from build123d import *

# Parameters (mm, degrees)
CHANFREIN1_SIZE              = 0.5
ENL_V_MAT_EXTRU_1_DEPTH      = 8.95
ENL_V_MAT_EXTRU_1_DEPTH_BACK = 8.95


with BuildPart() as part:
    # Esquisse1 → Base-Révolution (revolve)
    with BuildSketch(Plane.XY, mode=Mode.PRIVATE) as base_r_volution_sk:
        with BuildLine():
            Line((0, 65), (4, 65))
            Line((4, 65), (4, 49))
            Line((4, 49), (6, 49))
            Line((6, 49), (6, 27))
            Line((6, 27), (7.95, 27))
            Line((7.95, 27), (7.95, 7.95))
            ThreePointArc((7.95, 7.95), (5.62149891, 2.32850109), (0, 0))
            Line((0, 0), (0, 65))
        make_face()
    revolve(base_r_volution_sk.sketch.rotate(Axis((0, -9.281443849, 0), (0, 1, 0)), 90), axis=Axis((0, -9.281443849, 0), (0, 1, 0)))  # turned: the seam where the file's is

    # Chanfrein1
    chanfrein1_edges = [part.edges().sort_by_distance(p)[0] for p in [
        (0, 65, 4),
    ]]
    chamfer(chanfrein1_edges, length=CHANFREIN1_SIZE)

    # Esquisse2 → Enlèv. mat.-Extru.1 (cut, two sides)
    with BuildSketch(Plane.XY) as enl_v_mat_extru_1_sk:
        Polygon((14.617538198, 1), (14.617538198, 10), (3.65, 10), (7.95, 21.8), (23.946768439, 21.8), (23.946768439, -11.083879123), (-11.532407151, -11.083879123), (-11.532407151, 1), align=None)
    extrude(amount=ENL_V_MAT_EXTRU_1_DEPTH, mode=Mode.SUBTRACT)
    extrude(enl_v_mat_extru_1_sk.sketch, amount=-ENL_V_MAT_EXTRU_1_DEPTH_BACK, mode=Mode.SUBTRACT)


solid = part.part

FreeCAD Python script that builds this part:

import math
import FreeCAD as App
import Part
import Sketcher

V = App.Vector


def edges_at(feature, points):
    """Names of the edges that pass closest to the given points."""
    edges = feature.Shape.Edges
    near = lambda p: min(range(len(edges)), key=lambda i: edges[i].distToShape(Part.Vertex(*p))[0])
    return sorted({f"Edge{near(p) + 1}" for p in points})


def add_polygon(sketch, points):
    """Adds a closed chain of lines whose ends are joined by coincident constraints."""
    first, n = sketch.GeometryCount, len(points)
    for a, b in zip(points, points[1:] + points[:1]):
        sketch.addGeometry(Part.LineSegment(App.Vector(*a, 0), App.Vector(*b, 0)), False)
    for i in range(n):
        sketch.addConstraint(Sketcher.Constraint("Coincident", first + i, 2, first + (i + 1) % n, 1))

doc = App.newDocument("Part")
body = doc.addObject("PartDesign::Body", "Body")

# Sketch on XY plane
sketch1 = doc.addObject("Sketcher::SketchObject", "Sketch")
body.addObject(sketch1)
sketch1.AttachmentSupport = (doc.XY_Plane, [""])
sketch1.MapMode = "FlatFace"
sketch1.addGeometry([
    Part.LineSegment(V(4, 65, 0), V(0, 65, 0)),  # 0
    Part.LineSegment(V(0, 65, 0), V(0, 0, 0)),  # 1
    Part.ArcOfCircle(Part.Circle(V(0, 8, 0), V(0, 0, 1), 8), math.radians(-90), math.radians(0)),  # 2
    Part.LineSegment(V(8, 8, 0), V(8, 27, 0)),  # 3
    Part.LineSegment(V(8, 27, 0), V(6, 27, 0)),  # 4
    Part.LineSegment(V(6, 27, 0), V(6, 49, 0)),  # 5
    Part.LineSegment(V(6, 49, 0), V(4, 49, 0)),  # 6
    Part.LineSegment(V(4, 49, 0), V(4, 65, 0)),  # 7
], False)
sketch1.addConstraint([
    Sketcher.Constraint("Coincident", 0, 2, 1, 1),
    Sketcher.Constraint("Coincident", 1, 2, 2, 1),
    Sketcher.Constraint("Tangent", 2, 2, 3, 1),
    Sketcher.Constraint("Coincident", 3, 2, 4, 1),
    Sketcher.Constraint("Coincident", 4, 2, 5, 1),
    Sketcher.Constraint("Coincident", 5, 2, 6, 1),
    Sketcher.Constraint("Coincident", 6, 2, 7, 1),
    Sketcher.Constraint("Coincident", 7, 2, 0, 1),
    Sketcher.Constraint("Horizontal", 0),
    Sketcher.Constraint("Vertical", 1),
    Sketcher.Constraint("Vertical", 3),
    Sketcher.Constraint("Horizontal", 4),
    Sketcher.Constraint("Vertical", 5),
    Sketcher.Constraint("Horizontal", 6),
    Sketcher.Constraint("Vertical", 7),
    Sketcher.Constraint("Coincident", 1, 2, -1, 1),
    Sketcher.Constraint("PointOnObject", 2, 3, -2),
    Sketcher.Constraint("DistanceX", 0, 2, 0, 1, 4.0),
    Sketcher.Constraint("DistanceX", 6, 2, 6, 1, 2.0),
    Sketcher.Constraint("DistanceY", 1, 2, 1, 1, 65.0),
    Sketcher.Constraint("DistanceY", 5, 1, 5, 2, 22.0),
    Sketcher.Constraint("DistanceY", 7, 1, 7, 2, 16.0),
    Sketcher.Constraint("Radius", 2, 7.95),
])
revolution = doc.addObject("PartDesign::Revolution", "Revolution")
body.addObject(revolution)
revolution.Profile = sketch1
revolution.ReferenceAxis = (sketch1, ["V_Axis"])
revolution.Angle = 360
doc.recompute()

chamfer = doc.addObject("PartDesign::Chamfer", "Chamfer")
body.addObject(chamfer)
chamfer.Base = (revolution, edges_at(revolution, [(0, 65, 4)]))
chamfer.Size = 0.5

# Sketch on XY plane
sketch2 = doc.addObject("Sketcher::SketchObject", "Sketch001")
body.addObject(sketch2)
sketch2.AttachmentSupport = (doc.XY_Plane, [""])
sketch2.MapMode = "FlatFace"
add_polygon(sketch2, [(15, 10), (15, 1), (-12, 1), (-12, -11), (24, -11), (24, 22), (8, 22), (4, 10)])  # lines 0-7
sketch2.addConstraint([
    Sketcher.Constraint("Vertical", 0),
    Sketcher.Constraint("Horizontal", 1),
    Sketcher.Constraint("Vertical", 2),
    Sketcher.Constraint("Horizontal", 3),
    Sketcher.Constraint("Vertical", 4),
    Sketcher.Constraint("Horizontal", 5),
    Sketcher.Constraint("Horizontal", 7),
    Sketcher.Constraint("DistanceY", 0, 2, 0, 1, 9.0),
    Sketcher.Constraint("DistanceY", -1, 1, 0, 2, 1.0),
    Sketcher.Constraint("DistanceY", -1, 1, 4, 2, 21.8),
    Sketcher.Constraint("DistanceX", 6, 2, 5, 2, 4.3),
    Sketcher.Constraint("DistanceX", -1, 1, 5, 2, 7.95),
    Sketcher.Constraint("DistanceX", 5, 2, 5, 1, 15.996768),
    Sketcher.Constraint("DistanceX", 7, 1, 7, 2, 10.967538),
    Sketcher.Constraint("DistanceY", 2, 2, 2, 1, 12.083879),
    Sketcher.Constraint("DistanceX", 1, 2, 1, 1, 26.149945),
])
pocket1 = doc.addObject("PartDesign::Pocket", "Pocket")
body.addObject(pocket1)
pocket1.Profile = sketch2
pocket1.Type = "ThroughAll"
pocket1.Midplane = True

doc.recompute()
